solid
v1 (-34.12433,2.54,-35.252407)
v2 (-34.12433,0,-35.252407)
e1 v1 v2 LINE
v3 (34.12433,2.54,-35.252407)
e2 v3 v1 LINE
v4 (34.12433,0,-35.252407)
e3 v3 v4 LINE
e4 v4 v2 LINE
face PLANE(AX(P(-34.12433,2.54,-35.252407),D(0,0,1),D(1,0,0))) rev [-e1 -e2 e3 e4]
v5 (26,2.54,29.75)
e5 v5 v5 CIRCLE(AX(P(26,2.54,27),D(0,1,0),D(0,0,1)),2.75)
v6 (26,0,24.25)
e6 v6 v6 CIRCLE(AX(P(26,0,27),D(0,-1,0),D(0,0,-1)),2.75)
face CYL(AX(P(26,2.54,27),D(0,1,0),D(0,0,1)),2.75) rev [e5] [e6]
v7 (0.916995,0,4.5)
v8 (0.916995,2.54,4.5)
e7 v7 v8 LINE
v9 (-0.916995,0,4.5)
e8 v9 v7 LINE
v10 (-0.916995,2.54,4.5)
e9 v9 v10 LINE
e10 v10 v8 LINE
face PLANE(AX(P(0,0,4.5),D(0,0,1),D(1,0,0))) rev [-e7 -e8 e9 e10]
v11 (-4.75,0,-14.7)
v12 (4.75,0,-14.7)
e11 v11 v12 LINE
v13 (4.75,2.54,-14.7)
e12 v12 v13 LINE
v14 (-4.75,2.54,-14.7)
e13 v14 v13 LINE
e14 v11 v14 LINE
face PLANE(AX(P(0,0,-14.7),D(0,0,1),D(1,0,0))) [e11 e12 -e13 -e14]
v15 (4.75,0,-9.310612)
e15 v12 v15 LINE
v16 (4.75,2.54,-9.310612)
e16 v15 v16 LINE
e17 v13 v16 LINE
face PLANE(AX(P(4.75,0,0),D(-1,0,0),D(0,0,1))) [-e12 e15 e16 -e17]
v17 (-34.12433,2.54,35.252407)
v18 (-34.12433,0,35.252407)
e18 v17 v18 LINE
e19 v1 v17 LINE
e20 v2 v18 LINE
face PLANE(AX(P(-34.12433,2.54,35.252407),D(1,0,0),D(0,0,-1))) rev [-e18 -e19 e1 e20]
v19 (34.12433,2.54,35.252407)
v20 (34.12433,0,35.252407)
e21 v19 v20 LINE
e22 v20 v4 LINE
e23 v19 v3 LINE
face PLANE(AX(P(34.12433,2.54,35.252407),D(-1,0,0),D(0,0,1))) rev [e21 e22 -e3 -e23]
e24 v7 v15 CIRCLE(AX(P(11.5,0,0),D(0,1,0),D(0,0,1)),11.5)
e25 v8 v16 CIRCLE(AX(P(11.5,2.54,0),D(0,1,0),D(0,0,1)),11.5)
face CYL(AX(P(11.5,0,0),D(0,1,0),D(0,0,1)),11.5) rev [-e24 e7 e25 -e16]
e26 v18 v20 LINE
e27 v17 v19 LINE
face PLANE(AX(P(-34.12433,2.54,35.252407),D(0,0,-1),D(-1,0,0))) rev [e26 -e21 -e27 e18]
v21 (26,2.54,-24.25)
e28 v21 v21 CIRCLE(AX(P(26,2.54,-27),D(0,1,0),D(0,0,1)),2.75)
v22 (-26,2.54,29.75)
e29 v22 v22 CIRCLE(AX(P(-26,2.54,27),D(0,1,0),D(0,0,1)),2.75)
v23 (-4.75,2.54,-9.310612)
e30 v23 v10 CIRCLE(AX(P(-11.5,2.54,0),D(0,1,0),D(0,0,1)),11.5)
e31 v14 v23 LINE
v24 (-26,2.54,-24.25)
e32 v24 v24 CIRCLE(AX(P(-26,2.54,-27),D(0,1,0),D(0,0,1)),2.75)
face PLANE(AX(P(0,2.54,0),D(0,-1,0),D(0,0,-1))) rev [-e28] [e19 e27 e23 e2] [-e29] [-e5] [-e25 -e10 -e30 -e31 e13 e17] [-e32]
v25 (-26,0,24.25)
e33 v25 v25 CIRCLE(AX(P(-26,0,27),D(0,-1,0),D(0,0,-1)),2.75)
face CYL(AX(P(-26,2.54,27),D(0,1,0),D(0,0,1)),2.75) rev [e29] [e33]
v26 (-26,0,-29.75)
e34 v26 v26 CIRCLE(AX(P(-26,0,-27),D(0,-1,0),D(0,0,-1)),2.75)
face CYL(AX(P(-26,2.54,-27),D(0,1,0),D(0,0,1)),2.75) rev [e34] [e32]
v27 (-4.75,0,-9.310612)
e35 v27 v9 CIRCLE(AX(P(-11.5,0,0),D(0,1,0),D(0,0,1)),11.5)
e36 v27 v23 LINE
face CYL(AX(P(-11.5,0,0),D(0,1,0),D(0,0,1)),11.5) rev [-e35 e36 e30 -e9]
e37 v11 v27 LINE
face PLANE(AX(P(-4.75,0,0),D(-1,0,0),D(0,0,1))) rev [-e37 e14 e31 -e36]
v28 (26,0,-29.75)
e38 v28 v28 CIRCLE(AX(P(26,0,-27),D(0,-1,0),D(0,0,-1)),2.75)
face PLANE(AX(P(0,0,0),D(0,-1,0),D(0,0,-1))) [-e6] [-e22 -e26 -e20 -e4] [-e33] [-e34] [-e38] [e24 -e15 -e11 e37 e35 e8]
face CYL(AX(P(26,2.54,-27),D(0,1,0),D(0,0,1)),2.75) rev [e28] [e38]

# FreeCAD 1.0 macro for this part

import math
import FreeCAD as App
import Part
import Sketcher
Q = App.Units.Quantity

doc = App.newDocument("Part")
params = doc.addObject("Spreadsheet::Sheet", "Params")
for row, (alias, value) in enumerate([
    ("pad1_length", "2.54 mm"),
    ("sketch2_diameter", "5.5 mm"),
    ("hole_diameter", "5.5 mm"),
    ("sketch3_radius", "11.5 mm"),
    ("sketch3_width", "9.5 mm"),
], start=1):
    params.set(f"A{row}", alias)
    params.set(f"B{row}", "=" + value)
    params.setAlias(f"B{row}", alias)

body = doc.addObject("PartDesign::Body", "Body")

# Sketch on XZ plane
sketch1 = body.newObject("Sketcher::SketchObject", "Sketch")
sketch1.AttachmentSupport = (doc.getObject("XZ_Plane"), [""])
sketch1.MapMode = "FlatFace"
sketch1.addGeometry([
    Part.LineSegment(App.Vector(-34, -35, 0), App.Vector(-34, 35, 0)),
    Part.LineSegment(App.Vector(-34, 35, 0), App.Vector(34, 35, 0)),
    Part.LineSegment(App.Vector(34, 35, 0), App.Vector(34, -35, 0)),
    Part.LineSegment(App.Vector(34, -35, 0), App.Vector(-34, -35, 0)),
], False)
sketch1.addConstraint([
    Sketcher.Constraint("Coincident", 0, 2, 1, 1),
    Sketcher.Constraint("Coincident", 1, 2, 2, 1),
    Sketcher.Constraint("Coincident", 2, 2, 3, 1),
    Sketcher.Constraint("Coincident", 3, 2, 0, 1),
    Sketcher.Constraint("Vertical", 0),
    Sketcher.Constraint("Horizontal", 1),
    Sketcher.Constraint("Vertical", 2),
    Sketcher.Constraint("Horizontal", 3),
    Sketcher.Constraint("Symmetric", 0, 2, 2, 2, -1, 1),
    Sketcher.Constraint("DistanceX", 1, 1, 1, 2, Q("68.24866 mm")),
    Sketcher.Constraint("DistanceY", 0, 1, 0, 2, Q("70.504814 mm")),
])
pad1 = body.newObject("PartDesign::Pad", "Pad")
pad1.Profile = sketch1
pad1.setExpression("Length", "Params.pad1_length")
pad1.Reversed = True

# Sketch on XZ plane
sketch2 = body.newObject("Sketcher::SketchObject", "Sketch001")
sketch2.AttachmentSupport = (doc.getObject("XZ_Plane"), [""])
sketch2.MapMode = "FlatFace"
sketch2.AttachmentOffset = App.Placement(App.Vector(0, 0, -2.54), App.Rotation())
sketch2.addGeometry([
    Part.Circle(App.Vector(26, -27, 0), App.Vector(0, 0, 1), 2.8),
    Part.Circle(App.Vector(-26, -27, 0), App.Vector(0, 0, 1), 2.8),
    Part.Circle(App.Vector(-26, 27, 0), App.Vector(0, 0, 1), 2.8),
    Part.Circle(App.Vector(26, 27, 0), App.Vector(0, 0, 1), 2.8),
], False)
sketch2.addConstraint([
    Sketcher.Constraint("Equal", 0, 1),
    Sketcher.Constraint("Equal", 1, 2),
    Sketcher.Constraint("Equal", 2, 3),
    Sketcher.Constraint("Symmetric", 0, 3, 2, 3, -1, 1),
    Sketcher.Constraint("Symmetric", 1, 3, 3, 3, -1, 1),
    Sketcher.Constraint("Symmetric", 0, 3, 1, 3, -2),
    Sketcher.Constraint("Diameter", 0, Q("5.5 mm")),
    Sketcher.Constraint("DistanceX", -1, 1, 0, 3, Q("26 mm")),
    Sketcher.Constraint("DistanceY", 0, 3, -1, 1, Q("27 mm")),
])
sketch2.setExpression("Constraints[6]", "Params.sketch2_diameter")
doc.recompute()
hole = body.newObject("PartDesign::Hole", "Hole")
hole.Profile = sketch2
hole.ThreadType = "None"
hole.setExpression("Diameter", "Params.hole_diameter")
hole.DepthType = "ThroughAll"
hole.Reversed = True

# Sketch on XZ plane
sketch3 = body.newObject("Sketcher::SketchObject", "Sketch002")
sketch3.AttachmentSupport = (doc.getObject("XZ_Plane"), [""])
sketch3.MapMode = "FlatFace"
sketch3.AttachmentOffset = App.Placement(App.Vector(0, 0, -2.54), App.Rotation())
sketch3.addGeometry([
    Part.LineSegment(App.Vector(4.8, -14.7, 0), App.Vector(-4.8, -14.7, 0)),  # 0
    Part.LineSegment(App.Vector(-4.8, -14.7, 0), App.Vector(-4.8, -9.3, 0)),  # 1
    Part.ArcOfCircle(Part.Circle(App.Vector(-11.5, 0, 0), App.Vector(0, 0, 1), 11.5), math.radians(23), math.radians(306)),  # 2
    Part.LineSegment(App.Vector(-0.9, 4.5, 0), App.Vector(0.9, 4.5, 0)),  # 3
    Part.ArcOfCircle(Part.Circle(App.Vector(11.5, 0, 0), App.Vector(0, 0, 1), 11.5), math.radians(-126), math.radians(157)),  # 4
    Part.LineSegment(App.Vector(4.8, -9.3, 0), App.Vector(4.8, -14.7, 0)),  # 5
], False)
sketch3.addConstraint([
    Sketcher.Constraint("Coincident", 0, 2, 1, 1),
    Sketcher.Constraint("Coincident", 1, 2, 2, 2),
    Sketcher.Constraint("Coincident", 2, 1, 3, 1),
    Sketcher.Constraint("Coincident", 3, 2, 4, 2),
    Sketcher.Constraint("Coincident", 4, 1, 5, 1),
    Sketcher.Constraint("Coincident", 5, 2, 0, 1),
    Sketcher.Constraint("Horizontal", 0),
    Sketcher.Constraint("Vertical", 1),
    Sketcher.Constraint("Horizontal", 3),
    Sketcher.Constraint("Vertical", 5),
    Sketcher.Constraint("Equal", 2, 4),
    Sketcher.Constraint("Symmetric", 2, 3, 4, 3, -1, 1),
    Sketcher.Constraint("Symmetric", 1, 2, 4, 1, -2),
    Sketcher.Constraint("Radius", 2, Q("11.5 mm")),
    Sketcher.Constraint("DistanceX", 0, 2, 0, 1, Q("9.5 mm")),
    Sketcher.Constraint("DistanceX", 2, 3, 4, 3, Q("23 mm")),
    Sketcher.Constraint("DistanceY", 0, 2, -1, 1, Q("14.7 mm")),
    Sketcher.Constraint("DistanceY", -1, 1, 2, 1, Q("4.5 mm")),
])
sketch3.setExpression("Constraints[13]", "Params.sketch3_radius")
sketch3.setExpression("Constraints[14]", "Params.sketch3_width")
pocket1 = body.newObject("PartDesign::Pocket", "Pocket")
pocket1.Profile = sketch3
pocket1.Type = "ThroughAll"
pocket1.Reversed = True

doc.recompute()
